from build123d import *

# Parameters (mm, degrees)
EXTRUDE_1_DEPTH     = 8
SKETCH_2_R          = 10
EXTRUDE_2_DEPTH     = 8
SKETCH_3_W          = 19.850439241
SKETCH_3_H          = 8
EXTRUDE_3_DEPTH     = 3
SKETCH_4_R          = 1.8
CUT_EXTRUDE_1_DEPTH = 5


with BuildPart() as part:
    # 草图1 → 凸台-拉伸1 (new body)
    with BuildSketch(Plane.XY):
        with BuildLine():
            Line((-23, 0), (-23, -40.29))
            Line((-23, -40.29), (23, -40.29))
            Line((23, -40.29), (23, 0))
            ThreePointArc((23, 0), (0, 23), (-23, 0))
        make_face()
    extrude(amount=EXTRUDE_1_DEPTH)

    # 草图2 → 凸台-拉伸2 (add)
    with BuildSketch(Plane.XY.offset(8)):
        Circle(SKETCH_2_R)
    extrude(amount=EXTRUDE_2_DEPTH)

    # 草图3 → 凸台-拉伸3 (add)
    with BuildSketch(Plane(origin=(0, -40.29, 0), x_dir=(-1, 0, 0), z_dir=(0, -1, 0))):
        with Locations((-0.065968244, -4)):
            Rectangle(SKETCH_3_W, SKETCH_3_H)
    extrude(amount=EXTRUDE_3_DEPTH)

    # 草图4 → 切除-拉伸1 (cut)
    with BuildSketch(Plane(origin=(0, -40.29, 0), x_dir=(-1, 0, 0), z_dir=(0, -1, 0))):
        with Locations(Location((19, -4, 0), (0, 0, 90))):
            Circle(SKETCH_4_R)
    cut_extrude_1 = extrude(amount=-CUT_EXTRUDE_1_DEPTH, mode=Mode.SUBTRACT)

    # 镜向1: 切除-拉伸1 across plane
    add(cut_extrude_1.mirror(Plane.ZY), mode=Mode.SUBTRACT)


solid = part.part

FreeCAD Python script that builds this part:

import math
import FreeCAD as App
import Part
import Sketcher
from FreeCAD import Vector


def add_polygon(sketch, points):
    """Adds a closed chain of lines whose ends are joined by coincident constraints."""
    first, n = sketch.GeometryCount, len(points)
    for a, b in zip(points, points[1:] + points[:1]):
        sketch.addGeometry(Part.LineSegment(App.Vector(*a, 0), App.Vector(*b, 0)), False)
    for i in range(n):
        sketch.addConstraint(Sketcher.Constraint("Coincident", first + i, 2, first + (i + 1) % n, 1))

doc = App.newDocument("Part")
body = doc.addObject("PartDesign::Body", "Body")

sketch1 = body.newObject("Sketcher::SketchObject", "Sketch")
sketch1.AttachmentSupport = (doc.getObject("XY_Plane"), [""])
sketch1.MapMode = "FlatFace"
sketch1.addGeometry([
    Part.LineSegment(Vector(-23, 0, 0), Vector(-23, -40, 0)),
    Part.LineSegment(Vector(-23, -40, 0), Vector(23, -40, 0)),
    Part.LineSegment(Vector(23, -40, 0), Vector(23, 0, 0)),
    Part.ArcOfCircle(Part.Circle(Vector(0, 0, 0), Vector(0, 0, 1), 23), math.radians(0), math.radians(180)),
], False)
sketch1.addConstraint([
    Sketcher.Constraint("Coincident", 0, 2, 1, 1),
    Sketcher.Constraint("Coincident", 1, 2, 2, 1),
    Sketcher.Constraint("Tangent", 2, 2, 3, 1),
    Sketcher.Constraint("Tangent", 3, 2, 0, 1),
    Sketcher.Constraint("Vertical", 0),
    Sketcher.Constraint("Horizontal", 1),
    Sketcher.Constraint("Vertical", 2),
    Sketcher.Constraint("Coincident", 3, 3, -1, 1),
    Sketcher.Constraint("Radius", 3, 23.0),
    Sketcher.Constraint("DistanceY", 0, 2, 0, 1, 40.29),
])
pad1 = body.newObject("PartDesign::Pad", "Pad")
pad1.Profile = sketch1
pad1.Length = 8

sketch2 = body.newObject("Sketcher::SketchObject", "Sketch001")
sketch2.AttachmentSupport = (doc.getObject("XY_Plane"), [""])
sketch2.MapMode = "FlatFace"
sketch2.AttachmentOffset = App.Placement(Vector(0, 0, 8), App.Rotation())
sketch2.addGeometry(Part.Circle(Vector(0, 0, 0), Vector(0, 0, 1), 10), False)
sketch2.addConstraint([
    Sketcher.Constraint("Coincident", 0, 3, -1, 1),
    Sketcher.Constraint("Diameter", 0, 20.0),
])
pad2 = body.newObject("PartDesign::Pad", "Pad001")
pad2.Profile = sketch2
pad2.Length = 8

sketch3 = body.newObject("Sketcher::SketchObject", "Sketch002")
sketch3.AttachmentSupport = (doc.getObject("XZ_Plane"), [""])
sketch3.MapMode = "FlatFace"
sketch3.AttachmentOffset = App.Placement(Vector(0, 0, 40.29), App.Rotation())
add_polygon(sketch3, [(10, 0), (10, 8), (-10, 8), (-10, 0)])
sketch3.addConstraint([
    Sketcher.Constraint("Vertical", 0),
    Sketcher.Constraint("Horizontal", 1),
    Sketcher.Constraint("Vertical", 2),
    Sketcher.Constraint("Horizontal", 3),
    Sketcher.Constraint("PointOnObject", 2, 2, -1),
    Sketcher.Constraint("DistanceY", 0, 1, 0, 2, 8.0),
    Sketcher.Constraint("DistanceX", 1, 2, 1, 1, 19.850439),
    Sketcher.Constraint("DistanceX", 1, 2, -1, 1, 9.859251),
])
pad3 = body.newObject("PartDesign::Pad", "Pad002")
pad3.Profile = sketch3
pad3.Length = 3

sketch4 = body.newObject("Sketcher::SketchObject", "Sketch003")
sketch4.AttachmentSupport = (doc.getObject("XZ_Plane"), [""])
sketch4.MapMode = "FlatFace"
sketch4.AttachmentOffset = App.Placement(Vector(0, 0, 40.29), App.Rotation())
sketch4.addGeometry(Part.Circle(Vector(-19, 4, 0), Vector(0, 0, 1), 1.8), False)
sketch4.addConstraint([
    Sketcher.Constraint("Diameter", 0, 3.6),
    Sketcher.Constraint("DistanceX", 0, 3, -1, 1, 19.0),
    Sketcher.Constraint("DistanceY", -1, 1, 0, 3, 4.0),
])
pocket1 = body.newObject("PartDesign::Pocket", "Pocket")
pocket1.Profile = sketch4
pocket1.Length = 5
doc.recompute()

mirrored = body.newObject("PartDesign::Mirrored", "Mirrored")
mirrored.Originals = [pocket1]
mirrored.MirrorPlane = (doc.getObject("YZ_Plane"), [""])
body.Tip = mirrored

doc.recompute()
